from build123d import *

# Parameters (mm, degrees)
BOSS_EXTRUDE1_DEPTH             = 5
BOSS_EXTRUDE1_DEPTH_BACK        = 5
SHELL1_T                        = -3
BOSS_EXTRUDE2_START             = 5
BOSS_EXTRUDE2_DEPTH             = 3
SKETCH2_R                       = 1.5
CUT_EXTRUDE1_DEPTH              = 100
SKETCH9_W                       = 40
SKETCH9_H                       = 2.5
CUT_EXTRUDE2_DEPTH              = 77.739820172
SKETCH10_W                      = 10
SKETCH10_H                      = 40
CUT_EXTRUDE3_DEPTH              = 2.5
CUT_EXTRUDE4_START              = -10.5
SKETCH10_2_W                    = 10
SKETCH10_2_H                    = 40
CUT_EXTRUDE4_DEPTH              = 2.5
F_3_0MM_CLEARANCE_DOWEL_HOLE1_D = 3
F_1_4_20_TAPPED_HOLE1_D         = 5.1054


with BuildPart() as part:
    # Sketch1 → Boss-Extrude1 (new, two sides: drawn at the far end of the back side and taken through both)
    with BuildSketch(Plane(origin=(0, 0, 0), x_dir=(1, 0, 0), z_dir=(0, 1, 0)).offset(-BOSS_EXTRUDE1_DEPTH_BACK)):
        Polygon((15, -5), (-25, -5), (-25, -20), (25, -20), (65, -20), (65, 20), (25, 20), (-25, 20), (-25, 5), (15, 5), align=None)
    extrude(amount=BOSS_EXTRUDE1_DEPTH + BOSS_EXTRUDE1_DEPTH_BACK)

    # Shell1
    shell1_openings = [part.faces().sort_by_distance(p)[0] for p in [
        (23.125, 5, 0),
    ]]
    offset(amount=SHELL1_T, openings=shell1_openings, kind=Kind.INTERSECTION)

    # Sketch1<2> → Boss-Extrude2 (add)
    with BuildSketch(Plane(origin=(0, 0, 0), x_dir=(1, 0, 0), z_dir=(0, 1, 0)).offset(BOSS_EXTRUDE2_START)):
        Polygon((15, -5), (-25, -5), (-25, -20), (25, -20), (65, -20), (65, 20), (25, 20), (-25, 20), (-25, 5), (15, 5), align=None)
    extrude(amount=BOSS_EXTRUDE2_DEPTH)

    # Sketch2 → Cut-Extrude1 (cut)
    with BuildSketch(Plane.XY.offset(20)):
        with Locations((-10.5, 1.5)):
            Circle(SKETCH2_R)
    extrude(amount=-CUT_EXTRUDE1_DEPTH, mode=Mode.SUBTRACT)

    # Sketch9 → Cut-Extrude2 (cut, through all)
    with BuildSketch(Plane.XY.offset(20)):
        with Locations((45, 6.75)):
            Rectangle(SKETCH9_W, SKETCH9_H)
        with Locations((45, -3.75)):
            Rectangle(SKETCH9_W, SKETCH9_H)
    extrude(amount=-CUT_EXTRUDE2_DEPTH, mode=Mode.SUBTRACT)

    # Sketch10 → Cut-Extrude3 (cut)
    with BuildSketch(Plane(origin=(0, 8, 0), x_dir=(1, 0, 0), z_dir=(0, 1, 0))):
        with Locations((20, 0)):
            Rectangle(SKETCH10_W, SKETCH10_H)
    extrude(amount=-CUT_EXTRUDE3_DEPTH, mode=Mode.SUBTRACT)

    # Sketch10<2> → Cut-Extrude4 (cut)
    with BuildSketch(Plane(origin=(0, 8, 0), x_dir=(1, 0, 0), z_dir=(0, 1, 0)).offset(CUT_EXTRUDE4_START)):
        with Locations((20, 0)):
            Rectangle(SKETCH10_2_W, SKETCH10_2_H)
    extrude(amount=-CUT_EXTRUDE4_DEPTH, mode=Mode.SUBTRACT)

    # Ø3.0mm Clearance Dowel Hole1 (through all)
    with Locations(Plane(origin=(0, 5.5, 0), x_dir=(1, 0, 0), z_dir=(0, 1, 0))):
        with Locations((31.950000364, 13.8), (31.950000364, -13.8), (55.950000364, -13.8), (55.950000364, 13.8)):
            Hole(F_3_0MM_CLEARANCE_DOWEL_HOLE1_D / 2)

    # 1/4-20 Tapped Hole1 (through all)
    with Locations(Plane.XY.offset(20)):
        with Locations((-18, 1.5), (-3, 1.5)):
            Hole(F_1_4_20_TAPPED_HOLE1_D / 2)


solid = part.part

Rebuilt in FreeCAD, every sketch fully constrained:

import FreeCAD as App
import Part
import Sketcher
from FreeCAD import Vector


def faces_at(feature, points):
    """Names of the faces that lie closest to the given points."""
    faces = feature.Shape.Faces
    near = lambda p: min(range(len(faces)), key=lambda i: faces[i].distToShape(Part.Vertex(*p))[0])
    return sorted({f"Face{near(p) + 1}" for p in points})


def add_polygon(sketch, points):
    """Adds a closed chain of lines whose ends are joined by coincident constraints."""
    first, n = sketch.GeometryCount, len(points)
    for a, b in zip(points, points[1:] + points[:1]):
        sketch.addGeometry(Part.LineSegment(App.Vector(*a, 0), App.Vector(*b, 0)), False)
    for i in range(n):
        sketch.addConstraint(Sketcher.Constraint("Coincident", first + i, 2, first + (i + 1) % n, 1))

doc = App.newDocument("Part")
body = doc.addObject("PartDesign::Body", "Body")

# Sketch on XZ plane
sketch1 = body.newObject("Sketcher::SketchObject", "Sketch")
sketch1.AttachmentSupport = (doc.getObject("XZ_Plane"), [""])
sketch1.MapMode = "FlatFace"
add_polygon(sketch1, [(15, 5), (-25, 5), (-25, 20), (65, 20), (65, -20), (-25, -20), (-25, -5), (15, -5)])  # lines 0-7
sketch1.addConstraint([
    Sketcher.Constraint("Horizontal", 0),
    Sketcher.Constraint("Vertical", 1),
    Sketcher.Constraint("Horizontal", 2),
    Sketcher.Constraint("Vertical", 3),
    Sketcher.Constraint("Horizontal", 4),
    Sketcher.Constraint("Vertical", 5),
    Sketcher.Constraint("Horizontal", 6),
    Sketcher.Constraint("Vertical", 7),
    Sketcher.Constraint("Symmetric", 1, 2, 4, 2, -1),
    Sketcher.Constraint("Equal", 6, 3),
    Sketcher.Constraint("Equal", 1, 5),
    Sketcher.Constraint("DistanceX", 0, 2, 0, 1, 40.0),
    Sketcher.Constraint("DistanceX", 2, 1, 2, 2, 90.0),
    Sketcher.Constraint("DistanceY", 1, 1, 1, 2, 15.0),
    Sketcher.Constraint("DistanceX", 0, 2, -1, 1, 25.0),
])
pad1 = body.newObject("PartDesign::Pad", "Pad")
pad1.Profile = sketch1
pad1.Type = "TwoLengths"
pad1.Length = 5
pad1.Length2 = 5
pad1.Reversed = True
doc.recompute()

thickness = body.newObject("PartDesign::Thickness", "Thickness")
thickness.Base = (pad1, faces_at(pad1, [(20, 5, 0)]))
thickness.Value = 3
thickness.Reversed = True
thickness.Join = "Intersection"

# Sketch on XZ plane
sketch2 = body.newObject("Sketcher::SketchObject", "Sketch001")
sketch2.AttachmentSupport = (doc.getObject("XZ_Plane"), [""])
sketch2.MapMode = "FlatFace"
sketch2.AttachmentOffset = App.Placement(Vector(0, 0, -5), App.Rotation())
add_polygon(sketch2, [(15, 5), (-25, 5), (-25, 20), (65, 20), (65, -20), (-25, -20), (-25, -5), (15, -5)])  # lines 0-7
sketch2.addConstraint([
    Sketcher.Constraint("Horizontal", 0),
    Sketcher.Constraint("Vertical", 1),
    Sketcher.Constraint("Horizontal", 2),
    Sketcher.Constraint("Vertical", 3),
    Sketcher.Constraint("Horizontal", 4),
    Sketcher.Constraint("Vertical", 5),
    Sketcher.Constraint("Horizontal", 6),
    Sketcher.Constraint("Vertical", 7),
    Sketcher.Constraint("Symmetric", 1, 2, 4, 2, -1),
    Sketcher.Constraint("Equal", 6, 3),
    Sketcher.Constraint("Equal", 1, 5),
    Sketcher.Constraint("DistanceX", 0, 2, 0, 1, 40.0),
    Sketcher.Constraint("DistanceX", 2, 1, 2, 2, 90.0),
    Sketcher.Constraint("DistanceY", 1, 1, 1, 2, 15.0),
    Sketcher.Constraint("DistanceX", 0, 2, -1, 1, 25.0),
])
pad2 = body.newObject("PartDesign::Pad", "Pad001")
pad2.Profile = sketch2
pad2.Length = 3
pad2.Reversed = True

# Sketch on XY plane
sketch3 = body.newObject("Sketcher::SketchObject", "Sketch002")
sketch3.AttachmentSupport = (doc.getObject("XY_Plane"), [""])
sketch3.MapMode = "FlatFace"
sketch3.AttachmentOffset = App.Placement(Vector(0, 0, 20), App.Rotation())
sketch3.addGeometry(Part.Circle(Vector(-10.5, 1.5, 0), Vector(0, 0, 1), 1.5), False)
sketch3.addConstraint([
    Sketcher.Constraint("Diameter", 0, 3.0),
    Sketcher.Constraint("DistanceX", 0, 3, -1, 1, 10.5),
    Sketcher.Constraint("DistanceY", -1, 1, 0, 3, 1.5),
])
pocket1 = body.newObject("PartDesign::Pocket", "Pocket")
pocket1.Profile = sketch3
pocket1.Length = 100

# Sketch on XY plane
sketch4 = body.newObject("Sketcher::SketchObject", "Sketch003")
sketch4.AttachmentSupport = (doc.getObject("XY_Plane"), [""])
sketch4.MapMode = "FlatFace"
sketch4.AttachmentOffset = App.Placement(Vector(0, 0, 20), App.Rotation())
add_polygon(sketch4, [(25, 8), (25, 5.5), (65, 5.5), (65, 8)])  # lines 0-3
add_polygon(sketch4, [(25, -2.5), (25, -5), (65, -5), (65, -2.5)])  # lines 4-7
sketch4.addConstraint([
    Sketcher.Constraint("Vertical", 0),
    Sketcher.Constraint("Horizontal", 1),
    Sketcher.Constraint("Vertical", 2),
    Sketcher.Constraint("Horizontal", 3),
    Sketcher.Constraint("Vertical", 4),
    Sketcher.Constraint("Horizontal", 5),
    Sketcher.Constraint("Vertical", 6),
    Sketcher.Constraint("Horizontal", 7),
    Sketcher.Constraint("Vertical", 3, 2, 4, 2),
    Sketcher.Constraint("Vertical", 2, 2, 5, 2),
    Sketcher.Constraint("Equal", 2, 4),
    Sketcher.Constraint("DistanceX", 1, 1, 1, 2, 40.0),
    Sketcher.Constraint("DistanceY", 0, 2, 0, 1, 2.5),
    Sketcher.Constraint("DistanceX", -1, 1, 0, 2, 25.0),
    Sketcher.Constraint("DistanceY", -1, 1, 2, 2, 8.0),
    Sketcher.Constraint("DistanceY", 4, 2, -1, 1, 5.0),
])
pocket2 = body.newObject("PartDesign::Pocket", "Pocket001")
pocket2.Profile = sketch4
pocket2.Type = "ThroughAll"

# Sketch on XZ plane
sketch5 = body.newObject("Sketcher::SketchObject", "Sketch004")
sketch5.AttachmentSupport = (doc.getObject("XZ_Plane"), [""])
sketch5.MapMode = "FlatFace"
sketch5.AttachmentOffset = App.Placement(Vector(0, 0, -8), App.Rotation())
add_polygon(sketch5, [(15, -20), (15, 20), (25, 20), (25, -20)])  # lines 0-3
sketch5.addConstraint([
    Sketcher.Constraint("Vertical", 0),
    Sketcher.Constraint("Horizontal", 1),
    Sketcher.Constraint("Vertical", 2),
    Sketcher.Constraint("Horizontal", 3),
    Sketcher.Constraint("DistanceX", 1, 1, 1, 2, 10.0),
    Sketcher.Constraint("DistanceY", 0, 1, 0, 2, 40.0),
    Sketcher.Constraint("DistanceX", -1, 1, 0, 2, 15.0),
    Sketcher.Constraint("DistanceY", -1, 1, 0, 2, 20.0),
])
pocket3 = body.newObject("PartDesign::Pocket", "Pocket002")
pocket3.Profile = sketch5
pocket3.Length = 2.5
pocket3.Reversed = True

# Sketch on XZ plane
sketch6 = body.newObject("Sketcher::SketchObject", "Sketch005")
sketch6.AttachmentSupport = (doc.getObject("XZ_Plane"), [""])
sketch6.MapMode = "FlatFace"
sketch6.AttachmentOffset = App.Placement(Vector(0, 0, 2.5), App.Rotation())
add_polygon(sketch6, [(15, -20), (15, 20), (25, 20), (25, -20)])  # lines 0-3
sketch6.addConstraint([
    Sketcher.Constraint("Vertical", 0),
    Sketcher.Constraint("Horizontal", 1),
    Sketcher.Constraint("Vertical", 2),
    Sketcher.Constraint("Horizontal", 3),
    Sketcher.Constraint("DistanceX", 1, 1, 1, 2, 10.0),
    Sketcher.Constraint("DistanceY", 0, 1, 0, 2, 40.0),
    Sketcher.Constraint("DistanceX", -1, 1, 0, 2, 15.0),
    Sketcher.Constraint("DistanceY", -1, 1, 0, 2, 20.0),
])
pocket4 = body.newObject("PartDesign::Pocket", "Pocket003")
pocket4.Profile = sketch6
pocket4.Length = 2.5
pocket4.Reversed = True

# Sketch on XZ plane
sketch7 = body.newObject("Sketcher::SketchObject", "Sketch006")
sketch7.AttachmentSupport = (doc.getObject("XZ_Plane"), [""])
sketch7.MapMode = "FlatFace"
sketch7.AttachmentOffset = App.Placement(Vector(0, 0, -5.5), App.Rotation())
sketch7.addGeometry([
    Part.Circle(Vector(31.95, -13.8, 0), Vector(0, 0, 1), 1.5),
    Part.Circle(Vector(31.95, 13.8, 0), Vector(0, 0, 1), 1.5),
    Part.Circle(Vector(55.95, 13.8, 0), Vector(0, 0, 1), 1.5),
    Part.Circle(Vector(55.95, -13.8, 0), Vector(0, 0, 1), 1.5),
], False)
sketch7.addConstraint([
    Sketcher.Constraint("Equal", 0, 1),
    Sketcher.Constraint("Equal", 1, 2),
    Sketcher.Constraint("Equal", 2, 3),
    Sketcher.Constraint("Symmetric", 0, 3, 1, 3, -1),
    Sketcher.Constraint("Symmetric", 2, 3, 3, 3, -1),
    Sketcher.Constraint("Horizontal", 1, 3, 2, 3),
    Sketcher.Constraint("Diameter", 0, 3.0),
    Sketcher.Constraint("DistanceX", 1, 3, 2, 3, 24.0),
    Sketcher.Constraint("DistanceY", 0, 3, -1, 1, 13.8),
    Sketcher.Constraint("DistanceX", -1, 1, 0, 3, 31.95),
])
doc.recompute()
hole = body.newObject("PartDesign::Hole", "Hole")
hole.Profile = sketch7
hole.ThreadType = "None"
hole.Diameter = 3
hole.DepthType = "ThroughAll"
hole.Reversed = True

# Sketch on XY plane
sketch8 = body.newObject("Sketcher::SketchObject", "Sketch007")
sketch8.AttachmentSupport = (doc.getObject("XY_Plane"), [""])
sketch8.MapMode = "FlatFace"
sketch8.AttachmentOffset = App.Placement(Vector(0, 0, 20), App.Rotation())
sketch8.addGeometry([
    Part.Circle(Vector(-18, 1.5, 0), Vector(0, 0, 1), 2.5527),
    Part.Circle(Vector(-3, 1.5, 0), Vector(0, 0, 1), 2.5527),
], False)
sketch8.addConstraint([
    Sketcher.Constraint("Equal", 0, 1),
    Sketcher.Constraint("Horizontal", 0, 3, 1, 3),
    Sketcher.Constraint("DistanceX", 0, 3, -1, 1, 18.0),
    Sketcher.Constraint("DistanceX", 1, 3, -1, 1, 3.0),
    Sketcher.Constraint("Diameter", 0, 5.1054),
    Sketcher.Constraint("DistanceY", -1, 1, 0, 3, 1.5),
])
doc.recompute()
hole2 = body.newObject("PartDesign::Hole", "Hole001")
hole2.Profile = sketch8
hole2.ThreadType = "None"
hole2.Diameter = 5.1054
hole2.DepthType = "ThroughAll"

doc.recompute()
